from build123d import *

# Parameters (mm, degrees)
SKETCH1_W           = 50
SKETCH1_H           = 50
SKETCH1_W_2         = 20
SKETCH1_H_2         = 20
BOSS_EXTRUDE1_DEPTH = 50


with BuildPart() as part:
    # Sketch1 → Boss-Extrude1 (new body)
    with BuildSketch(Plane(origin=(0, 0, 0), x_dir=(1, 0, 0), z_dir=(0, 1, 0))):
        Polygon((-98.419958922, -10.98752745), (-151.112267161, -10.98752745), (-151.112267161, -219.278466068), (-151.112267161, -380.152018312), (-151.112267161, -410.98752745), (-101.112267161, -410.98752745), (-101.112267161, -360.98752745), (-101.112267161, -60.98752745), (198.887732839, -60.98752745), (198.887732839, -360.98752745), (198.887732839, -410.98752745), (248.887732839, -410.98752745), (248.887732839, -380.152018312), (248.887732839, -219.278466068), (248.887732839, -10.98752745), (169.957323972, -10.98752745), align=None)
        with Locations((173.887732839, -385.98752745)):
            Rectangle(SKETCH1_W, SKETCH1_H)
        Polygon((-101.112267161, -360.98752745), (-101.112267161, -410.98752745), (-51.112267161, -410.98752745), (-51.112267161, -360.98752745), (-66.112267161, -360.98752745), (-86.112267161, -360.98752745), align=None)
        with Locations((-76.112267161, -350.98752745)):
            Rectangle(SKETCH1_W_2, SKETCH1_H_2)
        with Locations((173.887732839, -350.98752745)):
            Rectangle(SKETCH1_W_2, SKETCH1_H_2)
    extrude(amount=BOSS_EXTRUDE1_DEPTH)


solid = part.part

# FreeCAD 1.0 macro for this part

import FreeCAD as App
import Part
import Sketcher

V = App.Vector


def add_polygon(sketch, points):
    """Adds a closed chain of lines whose ends are joined by coincident constraints."""
    first, n = sketch.GeometryCount, len(points)
    for a, b in zip(points, points[1:] + points[:1]):
        sketch.addGeometry(Part.LineSegment(App.Vector(*a, 0), App.Vector(*b, 0)), False)
    for i in range(n):
        sketch.addConstraint(Sketcher.Constraint("Coincident", first + i, 2, first + (i + 1) % n, 1))

doc = App.newDocument("Part")
body = doc.addObject("PartDesign::Body", "Body")

sketch1 = body.newObject("Sketcher::SketchObject", "Sketch")
sketch1.AttachmentSupport = (doc.getObject("XZ_Plane"), [""])
sketch1.MapMode = "FlatFace"
add_polygon(sketch1, [(-151, 11), (-151, 411), (-51, 411), (-51, 361), (-66, 361), (-66, 341), (-86, 341), (-86, 361), (-101, 361), (-101, 61), (199, 61), (199, 361), (184, 361), (184, 341), (164, 341), (164, 361), (149, 361), (149, 411), (249, 411), (249, 11)])
sketch1.addConstraint([
    Sketcher.Constraint("Vertical", 0),
    Sketcher.Constraint("Horizontal", 1),
    Sketcher.Constraint("Vertical", 2),
    Sketcher.Constraint("Horizontal", 3),
    Sketcher.Constraint("Vertical", 4),
    Sketcher.Constraint("Horizontal", 5),
    Sketcher.Constraint("Vertical", 6),
    Sketcher.Constraint("Horizontal", 7),
    Sketcher.Constraint("Vertical", 8),
    Sketcher.Constraint("Horizontal", 9),
    Sketcher.Constraint("Vertical", 10),
    Sketcher.Constraint("Horizontal", 11),
    Sketcher.Constraint("Vertical", 12),
    Sketcher.Constraint("Horizontal", 13),
    Sketcher.Constraint("Vertical", 14),
    Sketcher.Constraint("Horizontal", 15),
    Sketcher.Constraint("Vertical", 16),
    Sketcher.Constraint("Horizontal", 17),
    Sketcher.Constraint("Vertical", 18),
    Sketcher.Constraint("Horizontal", 19),
    Sketcher.Constraint("Horizontal", 3, 2, 6, 2),
    Sketcher.Constraint("Horizontal", 7, 2, 10, 2),
    Sketcher.Constraint("Horizontal", 5, 2, 12, 2),
    Sketcher.Constraint("Horizontal", 11, 2, 14, 2),
    Sketcher.Constraint("Horizontal", 1, 2, 16, 2),
    Sketcher.Constraint("Equal", 3, 7),
    Sketcher.Constraint("Equal", 7, 11),
    Sketcher.Constraint("Equal", 5, 13),
    Sketcher.Constraint("Equal", 11, 15),
    Sketcher.Constraint("Equal", 1, 17),
    Sketcher.Constraint("Equal", 19, 0),
    Sketcher.Constraint("Equal", 13, 4),
    Sketcher.Constraint("Equal", 9, 8),
    Sketcher.Constraint("DistanceX", 1, 1, 1, 2, 100.0),
    Sketcher.Constraint("DistanceX", 3, 2, 3, 1, 15.0),
    Sketcher.Constraint("DistanceX", 5, 2, 5, 1, 20.0),
    Sketcher.Constraint("DistanceX", 9, 1, 9, 2, 300.0),
    Sketcher.Constraint("DistanceY", 2, 2, 2, 1, 50.0),
    Sketcher.Constraint("DistanceX", 0, 2, -1, 1, 151.112267),
    Sketcher.Constraint("DistanceY", -1, 1, 0, 2, 410.987527),
])
pad1 = body.newObject("PartDesign::Pad", "Pad")
pad1.Profile = sketch1
pad1.Length = 50
pad1.Reversed = True

doc.recompute()
